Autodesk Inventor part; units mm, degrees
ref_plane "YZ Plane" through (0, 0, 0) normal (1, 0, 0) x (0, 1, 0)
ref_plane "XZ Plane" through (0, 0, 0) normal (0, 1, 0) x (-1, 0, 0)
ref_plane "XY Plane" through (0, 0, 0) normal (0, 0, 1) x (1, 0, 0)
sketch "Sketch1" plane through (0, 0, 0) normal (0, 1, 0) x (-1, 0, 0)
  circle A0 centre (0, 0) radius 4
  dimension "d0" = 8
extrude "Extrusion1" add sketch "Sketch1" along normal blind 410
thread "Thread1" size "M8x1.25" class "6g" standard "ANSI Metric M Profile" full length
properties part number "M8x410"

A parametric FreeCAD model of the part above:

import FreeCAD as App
import Part
import Sketcher

V = App.Vector

doc = App.newDocument("Part")
body = doc.addObject("PartDesign::Body", "Body")

sketch1 = body.newObject("Sketcher::SketchObject", "Sketch")
sketch1.AttachmentSupport = (doc.getObject("XZ_Plane"), [""])
sketch1.MapMode = "FlatFace"
sketch1.addGeometry(Part.Circle(V(0, 0, 0), V(0, 0, 1), 4), False)
sketch1.addConstraint([
    Sketcher.Constraint("Coincident", 0, 3, -1, 1),
    Sketcher.Constraint("Diameter", 0, 8.0),
])
pad1 = body.newObject("PartDesign::Pad", "Pad")
pad1.Profile = sketch1
pad1.Length = 410
pad1.Reversed = True

doc.recompute()
